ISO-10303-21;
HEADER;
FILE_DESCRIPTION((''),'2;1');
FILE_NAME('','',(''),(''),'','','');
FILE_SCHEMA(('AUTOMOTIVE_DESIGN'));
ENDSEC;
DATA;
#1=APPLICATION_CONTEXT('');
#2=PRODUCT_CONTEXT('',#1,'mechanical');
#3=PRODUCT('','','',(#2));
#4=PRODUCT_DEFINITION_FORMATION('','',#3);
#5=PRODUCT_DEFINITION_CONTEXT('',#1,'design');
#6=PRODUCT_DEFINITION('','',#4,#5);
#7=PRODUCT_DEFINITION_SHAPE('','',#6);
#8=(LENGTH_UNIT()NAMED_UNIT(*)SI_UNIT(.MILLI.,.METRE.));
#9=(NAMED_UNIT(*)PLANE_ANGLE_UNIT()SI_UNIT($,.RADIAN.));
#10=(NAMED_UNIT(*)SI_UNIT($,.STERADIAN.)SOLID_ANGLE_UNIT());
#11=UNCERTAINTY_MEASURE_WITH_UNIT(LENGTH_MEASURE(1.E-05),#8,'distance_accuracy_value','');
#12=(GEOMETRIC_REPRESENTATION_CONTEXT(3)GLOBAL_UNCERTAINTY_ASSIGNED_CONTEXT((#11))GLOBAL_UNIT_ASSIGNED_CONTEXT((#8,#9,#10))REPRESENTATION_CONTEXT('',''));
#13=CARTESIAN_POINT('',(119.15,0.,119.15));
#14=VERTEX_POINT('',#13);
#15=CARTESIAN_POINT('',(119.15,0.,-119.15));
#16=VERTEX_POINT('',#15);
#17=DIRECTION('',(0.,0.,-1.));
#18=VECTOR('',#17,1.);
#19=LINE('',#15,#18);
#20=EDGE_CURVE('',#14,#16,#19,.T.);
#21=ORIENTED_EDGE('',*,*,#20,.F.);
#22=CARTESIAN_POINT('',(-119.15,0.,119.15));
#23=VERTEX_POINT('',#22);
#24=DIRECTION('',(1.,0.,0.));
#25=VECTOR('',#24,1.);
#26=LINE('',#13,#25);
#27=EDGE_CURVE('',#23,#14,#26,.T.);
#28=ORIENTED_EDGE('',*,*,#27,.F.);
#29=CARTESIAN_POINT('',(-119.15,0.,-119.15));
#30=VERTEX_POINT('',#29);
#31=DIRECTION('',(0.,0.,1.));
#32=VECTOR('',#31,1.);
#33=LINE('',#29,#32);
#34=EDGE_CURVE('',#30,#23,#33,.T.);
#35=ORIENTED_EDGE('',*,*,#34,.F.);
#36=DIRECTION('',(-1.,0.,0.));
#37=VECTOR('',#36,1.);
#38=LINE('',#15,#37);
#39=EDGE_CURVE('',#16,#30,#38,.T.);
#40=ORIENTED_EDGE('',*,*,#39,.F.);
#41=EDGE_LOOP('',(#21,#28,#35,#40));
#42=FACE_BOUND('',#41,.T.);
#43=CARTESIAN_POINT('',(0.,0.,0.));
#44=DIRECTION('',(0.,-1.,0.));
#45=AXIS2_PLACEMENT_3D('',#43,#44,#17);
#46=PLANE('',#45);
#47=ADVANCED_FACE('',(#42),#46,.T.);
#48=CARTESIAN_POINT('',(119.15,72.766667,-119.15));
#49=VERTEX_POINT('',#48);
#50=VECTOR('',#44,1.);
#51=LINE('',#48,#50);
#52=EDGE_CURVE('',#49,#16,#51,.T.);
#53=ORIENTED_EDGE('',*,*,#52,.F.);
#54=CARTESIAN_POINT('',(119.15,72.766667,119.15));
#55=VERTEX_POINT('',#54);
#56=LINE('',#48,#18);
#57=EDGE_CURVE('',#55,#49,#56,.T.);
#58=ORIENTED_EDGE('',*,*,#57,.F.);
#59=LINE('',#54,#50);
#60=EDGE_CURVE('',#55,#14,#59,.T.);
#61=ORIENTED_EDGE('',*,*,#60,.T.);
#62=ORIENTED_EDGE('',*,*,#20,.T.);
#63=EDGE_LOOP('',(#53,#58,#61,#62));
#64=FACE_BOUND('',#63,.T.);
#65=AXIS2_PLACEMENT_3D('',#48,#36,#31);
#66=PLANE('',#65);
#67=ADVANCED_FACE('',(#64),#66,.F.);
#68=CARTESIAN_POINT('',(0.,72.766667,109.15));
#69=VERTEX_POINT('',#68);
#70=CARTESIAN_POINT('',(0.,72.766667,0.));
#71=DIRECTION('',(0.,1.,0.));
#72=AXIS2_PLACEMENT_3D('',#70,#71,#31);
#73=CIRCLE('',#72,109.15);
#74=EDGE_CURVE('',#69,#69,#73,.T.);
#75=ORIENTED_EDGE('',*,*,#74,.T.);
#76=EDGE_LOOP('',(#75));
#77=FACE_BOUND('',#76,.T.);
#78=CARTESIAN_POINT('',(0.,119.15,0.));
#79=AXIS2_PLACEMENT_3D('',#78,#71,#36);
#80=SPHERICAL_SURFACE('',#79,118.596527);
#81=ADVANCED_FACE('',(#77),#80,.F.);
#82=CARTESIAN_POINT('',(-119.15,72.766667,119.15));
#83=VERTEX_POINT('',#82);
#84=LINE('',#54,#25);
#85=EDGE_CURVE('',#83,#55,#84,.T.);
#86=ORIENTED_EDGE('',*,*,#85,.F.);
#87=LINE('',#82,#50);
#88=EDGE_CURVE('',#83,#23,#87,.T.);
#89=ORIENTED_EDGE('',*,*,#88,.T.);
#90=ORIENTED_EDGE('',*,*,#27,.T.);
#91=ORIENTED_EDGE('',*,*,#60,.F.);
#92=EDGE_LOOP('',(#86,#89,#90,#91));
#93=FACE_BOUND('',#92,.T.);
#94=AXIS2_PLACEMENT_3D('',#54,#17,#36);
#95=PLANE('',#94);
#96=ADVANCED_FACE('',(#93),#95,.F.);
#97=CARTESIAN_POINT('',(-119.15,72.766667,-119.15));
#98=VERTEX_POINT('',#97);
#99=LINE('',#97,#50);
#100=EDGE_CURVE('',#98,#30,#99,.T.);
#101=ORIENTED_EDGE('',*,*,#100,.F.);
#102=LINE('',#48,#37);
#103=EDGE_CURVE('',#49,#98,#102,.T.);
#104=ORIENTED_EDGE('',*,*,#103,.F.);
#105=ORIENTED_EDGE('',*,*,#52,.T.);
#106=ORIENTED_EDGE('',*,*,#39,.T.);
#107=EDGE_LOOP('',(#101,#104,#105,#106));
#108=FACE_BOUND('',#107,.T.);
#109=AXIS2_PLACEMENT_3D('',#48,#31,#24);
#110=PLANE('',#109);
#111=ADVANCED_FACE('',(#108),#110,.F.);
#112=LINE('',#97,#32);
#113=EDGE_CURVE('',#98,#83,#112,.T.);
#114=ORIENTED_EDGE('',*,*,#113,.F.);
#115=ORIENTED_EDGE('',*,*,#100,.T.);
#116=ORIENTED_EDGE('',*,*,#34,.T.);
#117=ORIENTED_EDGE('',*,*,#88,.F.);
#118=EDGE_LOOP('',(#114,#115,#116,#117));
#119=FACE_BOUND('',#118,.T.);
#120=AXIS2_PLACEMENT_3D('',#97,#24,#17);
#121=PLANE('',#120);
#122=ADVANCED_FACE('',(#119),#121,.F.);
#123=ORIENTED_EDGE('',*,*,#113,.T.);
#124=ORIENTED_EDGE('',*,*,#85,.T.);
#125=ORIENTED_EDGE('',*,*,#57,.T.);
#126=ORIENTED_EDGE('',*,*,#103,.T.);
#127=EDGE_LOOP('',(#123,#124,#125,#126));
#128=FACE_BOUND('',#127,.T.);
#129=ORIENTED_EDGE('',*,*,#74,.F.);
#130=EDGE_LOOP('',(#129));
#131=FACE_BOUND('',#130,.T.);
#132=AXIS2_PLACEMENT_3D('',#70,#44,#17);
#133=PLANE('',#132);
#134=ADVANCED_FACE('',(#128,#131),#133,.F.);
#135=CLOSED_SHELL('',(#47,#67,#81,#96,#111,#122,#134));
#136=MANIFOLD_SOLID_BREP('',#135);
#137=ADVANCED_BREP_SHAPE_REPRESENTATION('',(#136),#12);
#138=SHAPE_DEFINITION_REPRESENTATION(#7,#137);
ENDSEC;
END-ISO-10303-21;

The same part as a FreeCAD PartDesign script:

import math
import FreeCAD as App
import Part
import Sketcher

V = App.Vector
Q = App.Units.Quantity

doc = App.newDocument("Part")
params = doc.addObject("Spreadsheet::Sheet", "Params")
for row, (alias, value) in enumerate([
    ("sketch1_width", "238.3 mm"),
    ("pad1_length", "72.766667 mm"),
    ("sketch2_width", "109.15 mm"),
    ("groove_angle", "360 deg"),
], start=1):
    params.set(f"A{row}", alias)
    params.set(f"B{row}", "=" + value)
    params.setAlias(f"B{row}", alias)

body = doc.addObject("PartDesign::Body", "Body")

# Sketch on XZ plane
sketch1 = doc.addObject("Sketcher::SketchObject", "Sketch")
body.addObject(sketch1)
sketch1.AttachmentSupport = (doc.XZ_Plane, [""])
sketch1.MapMode = "FlatFace"
sketch1.addGeometry([
    Part.LineSegment(V(-119, -119, 0), V(-119, 119, 0)),
    Part.LineSegment(V(-119, 119, 0), V(119, 119, 0)),
    Part.LineSegment(V(119, 119, 0), V(119, -119, 0)),
    Part.LineSegment(V(119, -119, 0), V(-119, -119, 0)),
], False)
sketch1.addConstraint([
    Sketcher.Constraint("Coincident", 0, 2, 1, 1),
    Sketcher.Constraint("Coincident", 1, 2, 2, 1),
    Sketcher.Constraint("Coincident", 2, 2, 3, 1),
    Sketcher.Constraint("Coincident", 3, 2, 0, 1),
    Sketcher.Constraint("Vertical", 0),
    Sketcher.Constraint("Horizontal", 1),
    Sketcher.Constraint("Vertical", 2),
    Sketcher.Constraint("Horizontal", 3),
    Sketcher.Constraint("Symmetric", 0, 2, 2, 2, -1, 1),
    Sketcher.Constraint("Equal", 3, 0),
    Sketcher.Constraint("DistanceX", 1, 1, 1, 2, Q("238.3 mm")),
])
sketch1.setExpression("Constraints[10]", "Params.sketch1_width")
pad1 = doc.addObject("PartDesign::Pad", "Pad")
body.addObject(pad1)
pad1.Profile = sketch1
pad1.setExpression("Length", "Params.pad1_length")
pad1.Reversed = True

# Sketch on XY plane
sketch2 = doc.addObject("Sketcher::SketchObject", "Sketch001")
body.addObject(sketch2)
sketch2.AttachmentSupport = (doc.XY_Plane, [""])
sketch2.MapMode = "FlatFace"
sketch2.addGeometry([
    Part.LineSegment(V(0, 73, 0), V(-109, 73, 0)),
    Part.ArcOfCircle(Part.Circle(V(0, 119, 0), V(0, 0, 1), 119), math.radians(-157), math.radians(-90)),
    Part.LineSegment(V(0, 1, 0), V(0, 73, 0)),
], False)
sketch2.addConstraint([
    Sketcher.Constraint("Coincident", 0, 2, 1, 1),
    Sketcher.Constraint("Coincident", 1, 2, 2, 1),
    Sketcher.Constraint("Coincident", 2, 2, 0, 1),
    Sketcher.Constraint("Horizontal", 0),
    Sketcher.Constraint("Vertical", 2),
    Sketcher.Constraint("PointOnObject", 1, 3, -2),
    Sketcher.Constraint("PointOnObject", 1, 2, -2),
    Sketcher.Constraint("DistanceX", 0, 2, 0, 1, Q("109.15 mm")),
    Sketcher.Constraint("DistanceY", -1, 1, 1, 3, Q("119.15 mm")),
    Sketcher.Constraint("Radius", 1, Q("118.596527 mm")),
])
sketch2.setExpression("Constraints[7]", "Params.sketch2_width")
groove = doc.addObject("PartDesign::Groove", "Groove")
body.addObject(groove)
groove.Profile = sketch2
groove.ReferenceAxis = (sketch2, ["V_Axis"])
groove.setExpression("Angle", "Params.groove_angle")

doc.recompute()
